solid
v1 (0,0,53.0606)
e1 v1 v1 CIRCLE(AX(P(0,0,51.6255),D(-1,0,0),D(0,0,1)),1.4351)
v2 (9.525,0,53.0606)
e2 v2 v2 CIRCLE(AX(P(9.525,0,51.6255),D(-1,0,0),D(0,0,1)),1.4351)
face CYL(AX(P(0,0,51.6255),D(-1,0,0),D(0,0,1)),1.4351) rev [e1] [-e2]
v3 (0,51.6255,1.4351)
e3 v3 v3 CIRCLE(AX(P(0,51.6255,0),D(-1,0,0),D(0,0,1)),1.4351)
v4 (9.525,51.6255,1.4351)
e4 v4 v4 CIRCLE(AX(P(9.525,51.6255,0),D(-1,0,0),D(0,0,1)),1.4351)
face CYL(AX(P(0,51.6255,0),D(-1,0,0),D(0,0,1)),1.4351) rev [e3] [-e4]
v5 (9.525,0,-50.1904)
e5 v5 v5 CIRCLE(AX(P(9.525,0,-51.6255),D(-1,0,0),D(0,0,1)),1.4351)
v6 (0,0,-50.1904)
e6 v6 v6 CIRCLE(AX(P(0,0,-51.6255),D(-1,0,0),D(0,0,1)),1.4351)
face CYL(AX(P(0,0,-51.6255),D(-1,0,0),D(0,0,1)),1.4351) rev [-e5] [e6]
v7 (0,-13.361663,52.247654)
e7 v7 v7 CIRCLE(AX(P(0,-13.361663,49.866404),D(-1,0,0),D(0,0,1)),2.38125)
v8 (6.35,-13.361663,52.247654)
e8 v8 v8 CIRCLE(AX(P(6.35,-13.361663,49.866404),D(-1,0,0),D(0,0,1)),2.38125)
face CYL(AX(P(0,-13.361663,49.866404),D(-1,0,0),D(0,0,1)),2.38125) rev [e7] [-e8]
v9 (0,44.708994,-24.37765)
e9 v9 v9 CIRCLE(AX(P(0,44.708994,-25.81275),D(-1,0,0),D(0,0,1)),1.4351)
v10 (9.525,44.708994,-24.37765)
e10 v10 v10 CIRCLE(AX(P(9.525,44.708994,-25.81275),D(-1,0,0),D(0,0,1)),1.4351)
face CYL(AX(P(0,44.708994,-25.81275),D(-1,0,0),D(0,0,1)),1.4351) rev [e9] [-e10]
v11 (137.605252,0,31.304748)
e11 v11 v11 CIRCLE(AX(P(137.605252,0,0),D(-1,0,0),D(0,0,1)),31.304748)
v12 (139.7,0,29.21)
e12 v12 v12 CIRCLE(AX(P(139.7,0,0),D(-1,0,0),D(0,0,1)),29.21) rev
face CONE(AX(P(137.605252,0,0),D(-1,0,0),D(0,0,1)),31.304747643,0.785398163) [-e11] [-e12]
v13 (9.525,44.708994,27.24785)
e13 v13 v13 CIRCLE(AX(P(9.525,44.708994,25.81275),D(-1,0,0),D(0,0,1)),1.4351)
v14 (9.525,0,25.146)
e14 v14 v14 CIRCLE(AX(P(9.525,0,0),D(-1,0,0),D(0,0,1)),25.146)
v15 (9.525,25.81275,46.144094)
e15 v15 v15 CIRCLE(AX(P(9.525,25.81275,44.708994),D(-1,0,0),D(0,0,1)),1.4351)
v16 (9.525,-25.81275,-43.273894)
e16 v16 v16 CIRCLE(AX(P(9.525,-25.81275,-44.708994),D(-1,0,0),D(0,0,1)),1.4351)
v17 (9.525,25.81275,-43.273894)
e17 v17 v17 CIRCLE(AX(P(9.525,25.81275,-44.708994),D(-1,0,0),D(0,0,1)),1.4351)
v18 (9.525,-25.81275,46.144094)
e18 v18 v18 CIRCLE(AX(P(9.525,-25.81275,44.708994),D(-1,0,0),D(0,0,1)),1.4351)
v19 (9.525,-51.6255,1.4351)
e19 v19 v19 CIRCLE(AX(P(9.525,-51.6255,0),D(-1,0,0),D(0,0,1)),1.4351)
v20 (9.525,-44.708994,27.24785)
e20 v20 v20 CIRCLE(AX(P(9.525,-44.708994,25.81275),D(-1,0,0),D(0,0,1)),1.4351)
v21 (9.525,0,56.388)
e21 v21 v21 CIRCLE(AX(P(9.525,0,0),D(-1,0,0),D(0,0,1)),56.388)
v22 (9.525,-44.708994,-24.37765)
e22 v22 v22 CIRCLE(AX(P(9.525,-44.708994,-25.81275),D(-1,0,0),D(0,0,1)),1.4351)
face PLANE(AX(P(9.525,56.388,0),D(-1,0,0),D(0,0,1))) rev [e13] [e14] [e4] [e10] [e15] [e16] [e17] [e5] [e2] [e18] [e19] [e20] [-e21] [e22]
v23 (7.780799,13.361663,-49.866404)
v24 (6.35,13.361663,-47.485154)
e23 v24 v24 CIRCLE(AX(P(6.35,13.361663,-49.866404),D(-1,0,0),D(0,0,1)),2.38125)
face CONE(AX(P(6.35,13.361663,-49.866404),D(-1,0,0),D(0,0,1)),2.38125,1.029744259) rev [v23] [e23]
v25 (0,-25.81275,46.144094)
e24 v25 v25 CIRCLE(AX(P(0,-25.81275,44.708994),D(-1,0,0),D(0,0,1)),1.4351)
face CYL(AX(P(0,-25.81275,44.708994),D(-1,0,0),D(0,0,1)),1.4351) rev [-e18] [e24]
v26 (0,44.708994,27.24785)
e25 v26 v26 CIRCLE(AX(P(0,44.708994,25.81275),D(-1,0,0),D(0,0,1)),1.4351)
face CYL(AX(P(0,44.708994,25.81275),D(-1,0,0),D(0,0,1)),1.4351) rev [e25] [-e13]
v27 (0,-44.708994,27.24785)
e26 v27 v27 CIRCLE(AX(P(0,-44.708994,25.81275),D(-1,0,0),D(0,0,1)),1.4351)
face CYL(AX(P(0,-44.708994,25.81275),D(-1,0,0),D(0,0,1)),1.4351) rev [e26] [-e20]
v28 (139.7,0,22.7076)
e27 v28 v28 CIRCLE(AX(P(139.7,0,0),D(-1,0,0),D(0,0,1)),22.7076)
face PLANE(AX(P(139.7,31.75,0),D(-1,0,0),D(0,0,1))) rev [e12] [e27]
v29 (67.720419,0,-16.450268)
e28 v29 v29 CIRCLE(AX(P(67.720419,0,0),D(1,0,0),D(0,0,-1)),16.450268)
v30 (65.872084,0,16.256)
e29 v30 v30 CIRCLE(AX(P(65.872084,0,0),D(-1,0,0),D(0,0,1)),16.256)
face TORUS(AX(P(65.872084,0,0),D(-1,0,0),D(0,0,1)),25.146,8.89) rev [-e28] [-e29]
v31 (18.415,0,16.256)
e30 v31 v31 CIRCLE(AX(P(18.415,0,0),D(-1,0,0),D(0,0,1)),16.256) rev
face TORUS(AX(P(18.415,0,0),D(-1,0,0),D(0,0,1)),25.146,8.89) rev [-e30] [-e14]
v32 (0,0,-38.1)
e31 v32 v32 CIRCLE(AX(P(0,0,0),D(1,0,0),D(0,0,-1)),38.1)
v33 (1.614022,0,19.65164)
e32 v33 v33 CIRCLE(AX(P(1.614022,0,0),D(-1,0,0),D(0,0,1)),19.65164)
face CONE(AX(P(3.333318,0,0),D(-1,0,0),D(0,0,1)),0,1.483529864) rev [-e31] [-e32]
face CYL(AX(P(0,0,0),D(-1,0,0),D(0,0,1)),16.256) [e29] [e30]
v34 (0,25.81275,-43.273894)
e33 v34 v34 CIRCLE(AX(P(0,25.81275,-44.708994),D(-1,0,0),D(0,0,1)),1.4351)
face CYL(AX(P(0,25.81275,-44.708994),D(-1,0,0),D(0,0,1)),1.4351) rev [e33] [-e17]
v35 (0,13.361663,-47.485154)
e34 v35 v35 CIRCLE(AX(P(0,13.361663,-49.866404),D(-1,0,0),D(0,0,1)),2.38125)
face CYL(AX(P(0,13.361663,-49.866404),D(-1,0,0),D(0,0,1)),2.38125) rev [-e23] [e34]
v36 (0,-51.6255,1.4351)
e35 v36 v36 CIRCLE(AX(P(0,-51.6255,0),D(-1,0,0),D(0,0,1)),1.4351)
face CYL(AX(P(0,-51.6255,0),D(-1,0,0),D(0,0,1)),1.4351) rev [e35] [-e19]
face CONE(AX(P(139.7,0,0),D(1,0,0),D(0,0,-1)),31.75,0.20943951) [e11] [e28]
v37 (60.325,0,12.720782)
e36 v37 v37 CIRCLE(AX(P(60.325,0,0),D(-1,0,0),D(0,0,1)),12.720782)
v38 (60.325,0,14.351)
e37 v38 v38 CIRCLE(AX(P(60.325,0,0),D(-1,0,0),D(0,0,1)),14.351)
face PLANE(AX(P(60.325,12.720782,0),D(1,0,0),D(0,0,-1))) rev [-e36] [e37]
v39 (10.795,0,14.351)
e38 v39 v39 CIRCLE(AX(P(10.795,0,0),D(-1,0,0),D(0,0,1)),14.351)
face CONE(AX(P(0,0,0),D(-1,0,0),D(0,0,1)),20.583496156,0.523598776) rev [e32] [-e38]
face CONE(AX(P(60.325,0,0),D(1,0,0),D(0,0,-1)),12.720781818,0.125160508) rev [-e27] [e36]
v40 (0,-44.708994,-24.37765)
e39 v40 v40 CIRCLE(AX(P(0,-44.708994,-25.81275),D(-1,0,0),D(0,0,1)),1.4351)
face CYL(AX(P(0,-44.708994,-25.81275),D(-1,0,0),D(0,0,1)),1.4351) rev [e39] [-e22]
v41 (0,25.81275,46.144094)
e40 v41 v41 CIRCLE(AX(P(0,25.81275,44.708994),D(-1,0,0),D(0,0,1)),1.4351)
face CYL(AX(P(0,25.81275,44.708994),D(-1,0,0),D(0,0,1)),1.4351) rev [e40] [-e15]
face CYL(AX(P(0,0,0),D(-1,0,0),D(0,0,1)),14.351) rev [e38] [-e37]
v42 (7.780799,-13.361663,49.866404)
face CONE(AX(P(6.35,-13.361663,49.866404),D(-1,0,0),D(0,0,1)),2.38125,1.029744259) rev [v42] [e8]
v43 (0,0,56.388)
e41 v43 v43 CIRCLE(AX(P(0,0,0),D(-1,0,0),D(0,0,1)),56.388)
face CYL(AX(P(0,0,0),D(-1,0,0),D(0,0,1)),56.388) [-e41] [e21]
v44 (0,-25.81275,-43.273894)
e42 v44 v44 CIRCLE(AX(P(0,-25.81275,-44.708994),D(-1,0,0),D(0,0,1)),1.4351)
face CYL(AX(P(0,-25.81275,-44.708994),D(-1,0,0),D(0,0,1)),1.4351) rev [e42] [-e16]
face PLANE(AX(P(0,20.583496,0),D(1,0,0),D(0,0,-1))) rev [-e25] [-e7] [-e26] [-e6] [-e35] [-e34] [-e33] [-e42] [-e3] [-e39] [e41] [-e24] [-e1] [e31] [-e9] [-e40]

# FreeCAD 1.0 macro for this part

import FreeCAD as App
import Part
import Sketcher

V = App.Vector
Q = App.Units.Quantity


def edges_at(feature, points):
    """Names of the edges that pass closest to the given points."""
    edges = feature.Shape.Edges
    near = lambda p: min(range(len(edges)), key=lambda i: edges[i].distToShape(Part.Vertex(*p))[0])
    return sorted({f"Edge{near(p) + 1}" for p in points})


def add_polygon(sketch, points):
    """Adds a closed chain of lines whose ends are joined by coincident constraints."""
    first, n = sketch.GeometryCount, len(points)
    for a, b in zip(points, points[1:] + points[:1]):
        sketch.addGeometry(Part.LineSegment(App.Vector(*a, 0), App.Vector(*b, 0)), False)
    for i in range(n):
        sketch.addConstraint(Sketcher.Constraint("Coincident", first + i, 2, first + (i + 1) % n, 1))

doc = App.newDocument("Part")
body = doc.addObject("PartDesign::Body", "Body")

sketch1 = body.newObject("Sketcher::SketchObject", "Sketch")
sketch1.AttachmentSupport = (doc.getObject("XY_Plane"), [""])
sketch1.MapMode = "FlatFace"
add_polygon(sketch1, [(0, 56.4), (0, 20.6), (10.8, 14.4), (60.3, 14.4), (60.3, 12.7), (139.7, 22.7), (139.7, 31.8), (66.8, 16.3), (9.5, 16.3), (9.5, 56.4)])
sketch1.addConstraint([
    Sketcher.Constraint("Vertical", 0),
    Sketcher.Constraint("Horizontal", 2),
    Sketcher.Constraint("Vertical", 3),
    Sketcher.Constraint("Vertical", 5),
    Sketcher.Constraint("Horizontal", 7),
    Sketcher.Constraint("Vertical", 8),
    Sketcher.Constraint("Horizontal", 9),
    Sketcher.Constraint("PointOnObject", 0, 2, -2),
    Sketcher.Constraint("Angle", 1, Q("-30 deg")),
    Sketcher.Constraint("Angle", 6, Q("-168 deg")),
    Sketcher.Constraint("DistanceX", 7, 2, 2, 2, Q("2 in")),
    Sketcher.Constraint("DistanceX", 2, 1, 2, 2, Q("1.95 in")),
    Sketcher.Constraint("DistanceY", 8, 1, 8, 2, Q("1.58 in")),
    Sketcher.Constraint("DistanceX", -1, 1, 4, 2, Q("5.5 in")),
    Sketcher.Constraint("DistanceX", 9, 2, 9, 1, Q("0.375 in")),
    Sketcher.Constraint("DistanceY", 5, 1, 5, 2, Q("0.356 in")),
    Sketcher.Constraint("DistanceY", -1, 1, 5, 2, Q("1.25 in")),
    Sketcher.Constraint("DistanceY", -1, 1, 6, 2, Q("0.64 in")),
    Sketcher.Constraint("DistanceY", -1, 1, 1, 2, Q("0.565 in")),
    Sketcher.Constraint("DistanceY", 3, 2, 3, 1, 1.630218),
])
revolution = body.newObject("PartDesign::Revolution", "Revolution")
revolution.Profile = sketch1
revolution.ReferenceAxis = (sketch1, ["H_Axis"])
revolution.Angle = 360

sketch2 = body.newObject("Sketcher::SketchObject", "Sketch001")
sketch2.AttachmentSupport = (doc.getObject("YZ_Plane"), [""])
sketch2.MapMode = "FlatFace"
sketch2.addGeometry([
    Part.Circle(V(-51.6, 0, 0), V(0, 0, 1), 1.4),
    Part.Circle(V(-44.7, -25.8, 0), V(0, 0, 1), 1.4),
    Part.Circle(V(-25.8, -44.7, 0), V(0, 0, 1), 1.4),
    Part.Circle(V(0, -51.6, 0), V(0, 0, 1), 1.4),
    Part.Circle(V(25.8, -44.7, 0), V(0, 0, 1), 1.4),
    Part.Circle(V(44.7, -25.8, 0), V(0, 0, 1), 1.4),
    Part.Circle(V(51.6, 0, 0), V(0, 0, 1), 1.4),
    Part.Circle(V(44.7, 25.8, 0), V(0, 0, 1), 1.4),
    Part.Circle(V(25.8, 44.7, 0), V(0, 0, 1), 1.4),
    Part.Circle(V(0, 51.6, 0), V(0, 0, 1), 1.4),
    Part.Circle(V(-25.8, 44.7, 0), V(0, 0, 1), 1.4),
    Part.Circle(V(-44.7, 25.8, 0), V(0, 0, 1), 1.4),
], False)
sketch2.addConstraint([
    Sketcher.Constraint("Equal", 0, 1),
    Sketcher.Constraint("Equal", 1, 2),
    Sketcher.Constraint("Equal", 2, 3),
    Sketcher.Constraint("Equal", 3, 4),
    Sketcher.Constraint("Equal", 4, 5),
    Sketcher.Constraint("Equal", 5, 6),
    Sketcher.Constraint("Equal", 6, 7),
    Sketcher.Constraint("Equal", 7, 8),
    Sketcher.Constraint("Equal", 8, 9),
    Sketcher.Constraint("Equal", 9, 10),
    Sketcher.Constraint("Equal", 10, 11),
    Sketcher.Constraint("Symmetric", 0, 3, 6, 3, -1, 1),
    Sketcher.Constraint("Symmetric", 1, 3, 7, 3, -1, 1),
    Sketcher.Constraint("Symmetric", 2, 3, 8, 3, -1, 1),
    Sketcher.Constraint("Symmetric", 3, 3, 9, 3, -1, 1),
    Sketcher.Constraint("Symmetric", 4, 3, 10, 3, -1, 1),
    Sketcher.Constraint("Symmetric", 5, 3, 11, 3, -1, 1),
    Sketcher.Constraint("Symmetric", 2, 3, 4, 3, -2),
    Sketcher.Constraint("Symmetric", 1, 3, 5, 3, -2),
    Sketcher.Constraint("PointOnObject", 0, 3, -1),
    Sketcher.Constraint("PointOnObject", 3, 3, -2),
    Sketcher.Constraint("Diameter", 0, Q("0.113 in")),
    Sketcher.Constraint("DistanceX", 0, 3, -1, 1, Q("2.0325 in")),
    Sketcher.Constraint("DistanceY", 3, 3, -1, 1, Q("2.0325 in")),
    Sketcher.Constraint("DistanceX", 2, 3, 4, 3, Q("2.0325 in")),
    Sketcher.Constraint("DistanceY", 5, 3, 7, 3, Q("2.0325 in")),
    Sketcher.Constraint("DistanceX", 1, 3, 5, 3, 89.417989),
    Sketcher.Constraint("DistanceY", 4, 3, 8, 3, 89.417989),
])
doc.recompute()
hole = body.newObject("PartDesign::Hole", "Hole")
hole.Profile = sketch2
hole.ThreadType = "None"
hole.Diameter = Q("0.113 in")
hole.DepthType = "Dimension"
hole.Depth = Q("0.375 in")
hole.DrillPoint = "Flat"
hole.Reversed = True

sketch3 = body.newObject("Sketcher::SketchObject", "Sketch002")
sketch3.AttachmentSupport = (doc.getObject("YZ_Plane"), [""])
sketch3.MapMode = "FlatFace"
sketch3.addGeometry([
    Part.Circle(V(-13.4, 49.9, 0), V(0, 0, 1), 2.4),
    Part.Circle(V(13.4, -49.9, 0), V(0, 0, 1), 2.4),
], False)
sketch3.addConstraint([
    Sketcher.Constraint("Equal", 0, 1),
    Sketcher.Constraint("Symmetric", 0, 3, 1, 3, -1, 1),
    Sketcher.Constraint("Diameter", 0, Q("0.1875 in")),
    Sketcher.Constraint("DistanceX", 0, 3, -1, 1, 13.361663),
    Sketcher.Constraint("DistanceY", -1, 1, 0, 3, 49.866404),
])
doc.recompute()
hole2 = body.newObject("PartDesign::Hole", "Hole001")
hole2.Profile = sketch3
hole2.ThreadType = "None"
hole2.Diameter = Q("0.1875 in")
hole2.DepthType = "Dimension"
hole2.Depth = Q("0.25 in")
hole2.DrillPoint = "Angled"
hole2.DrillPointAngle = 118
hole2.Reversed = True
doc.recompute()

fillet = body.newObject("PartDesign::Fillet", "Fillet")
fillet.Base = (hole2, edges_at(hole2, [(66.806, -16.256, 0), (9.525, -16.256, 0)]))
fillet.Radius = Q("0.35 in")

sketch4 = body.newObject("Sketcher::SketchObject", "Sketch003")
sketch4.AttachmentSupport = (doc.getObject("XZ_Plane"), [""])
sketch4.MapMode = "FlatFace"
add_polygon(sketch4, [(3.3, 0), (0, -38.1), (0, 0)])
sketch4.addConstraint([
    Sketcher.Constraint("Vertical", 1),
    Sketcher.Constraint("Horizontal", 2),
    Sketcher.Constraint("Coincident", 1, 2, -1, 1),
    Sketcher.Constraint("DistanceY", 1, 1, 1, 2, Q("1.5 in")),
    Sketcher.Constraint("Angle", 0, Q("-95 deg")),
])
groove = body.newObject("PartDesign::Groove", "Groove")
groove.Profile = sketch4
groove.ReferenceAxis = (sketch4, ["H_Axis"])
groove.Angle = 360
doc.recompute()

chamfer = body.newObject("PartDesign::Chamfer", "Chamfer")
chamfer.Base = (groove, edges_at(groove, [(139.7, -31.75, 0)]))
chamfer.ChamferType = "Two distances"
chamfer.Size = 2.141546
chamfer.Size2 = Q("0.1 in")

doc.recompute()
